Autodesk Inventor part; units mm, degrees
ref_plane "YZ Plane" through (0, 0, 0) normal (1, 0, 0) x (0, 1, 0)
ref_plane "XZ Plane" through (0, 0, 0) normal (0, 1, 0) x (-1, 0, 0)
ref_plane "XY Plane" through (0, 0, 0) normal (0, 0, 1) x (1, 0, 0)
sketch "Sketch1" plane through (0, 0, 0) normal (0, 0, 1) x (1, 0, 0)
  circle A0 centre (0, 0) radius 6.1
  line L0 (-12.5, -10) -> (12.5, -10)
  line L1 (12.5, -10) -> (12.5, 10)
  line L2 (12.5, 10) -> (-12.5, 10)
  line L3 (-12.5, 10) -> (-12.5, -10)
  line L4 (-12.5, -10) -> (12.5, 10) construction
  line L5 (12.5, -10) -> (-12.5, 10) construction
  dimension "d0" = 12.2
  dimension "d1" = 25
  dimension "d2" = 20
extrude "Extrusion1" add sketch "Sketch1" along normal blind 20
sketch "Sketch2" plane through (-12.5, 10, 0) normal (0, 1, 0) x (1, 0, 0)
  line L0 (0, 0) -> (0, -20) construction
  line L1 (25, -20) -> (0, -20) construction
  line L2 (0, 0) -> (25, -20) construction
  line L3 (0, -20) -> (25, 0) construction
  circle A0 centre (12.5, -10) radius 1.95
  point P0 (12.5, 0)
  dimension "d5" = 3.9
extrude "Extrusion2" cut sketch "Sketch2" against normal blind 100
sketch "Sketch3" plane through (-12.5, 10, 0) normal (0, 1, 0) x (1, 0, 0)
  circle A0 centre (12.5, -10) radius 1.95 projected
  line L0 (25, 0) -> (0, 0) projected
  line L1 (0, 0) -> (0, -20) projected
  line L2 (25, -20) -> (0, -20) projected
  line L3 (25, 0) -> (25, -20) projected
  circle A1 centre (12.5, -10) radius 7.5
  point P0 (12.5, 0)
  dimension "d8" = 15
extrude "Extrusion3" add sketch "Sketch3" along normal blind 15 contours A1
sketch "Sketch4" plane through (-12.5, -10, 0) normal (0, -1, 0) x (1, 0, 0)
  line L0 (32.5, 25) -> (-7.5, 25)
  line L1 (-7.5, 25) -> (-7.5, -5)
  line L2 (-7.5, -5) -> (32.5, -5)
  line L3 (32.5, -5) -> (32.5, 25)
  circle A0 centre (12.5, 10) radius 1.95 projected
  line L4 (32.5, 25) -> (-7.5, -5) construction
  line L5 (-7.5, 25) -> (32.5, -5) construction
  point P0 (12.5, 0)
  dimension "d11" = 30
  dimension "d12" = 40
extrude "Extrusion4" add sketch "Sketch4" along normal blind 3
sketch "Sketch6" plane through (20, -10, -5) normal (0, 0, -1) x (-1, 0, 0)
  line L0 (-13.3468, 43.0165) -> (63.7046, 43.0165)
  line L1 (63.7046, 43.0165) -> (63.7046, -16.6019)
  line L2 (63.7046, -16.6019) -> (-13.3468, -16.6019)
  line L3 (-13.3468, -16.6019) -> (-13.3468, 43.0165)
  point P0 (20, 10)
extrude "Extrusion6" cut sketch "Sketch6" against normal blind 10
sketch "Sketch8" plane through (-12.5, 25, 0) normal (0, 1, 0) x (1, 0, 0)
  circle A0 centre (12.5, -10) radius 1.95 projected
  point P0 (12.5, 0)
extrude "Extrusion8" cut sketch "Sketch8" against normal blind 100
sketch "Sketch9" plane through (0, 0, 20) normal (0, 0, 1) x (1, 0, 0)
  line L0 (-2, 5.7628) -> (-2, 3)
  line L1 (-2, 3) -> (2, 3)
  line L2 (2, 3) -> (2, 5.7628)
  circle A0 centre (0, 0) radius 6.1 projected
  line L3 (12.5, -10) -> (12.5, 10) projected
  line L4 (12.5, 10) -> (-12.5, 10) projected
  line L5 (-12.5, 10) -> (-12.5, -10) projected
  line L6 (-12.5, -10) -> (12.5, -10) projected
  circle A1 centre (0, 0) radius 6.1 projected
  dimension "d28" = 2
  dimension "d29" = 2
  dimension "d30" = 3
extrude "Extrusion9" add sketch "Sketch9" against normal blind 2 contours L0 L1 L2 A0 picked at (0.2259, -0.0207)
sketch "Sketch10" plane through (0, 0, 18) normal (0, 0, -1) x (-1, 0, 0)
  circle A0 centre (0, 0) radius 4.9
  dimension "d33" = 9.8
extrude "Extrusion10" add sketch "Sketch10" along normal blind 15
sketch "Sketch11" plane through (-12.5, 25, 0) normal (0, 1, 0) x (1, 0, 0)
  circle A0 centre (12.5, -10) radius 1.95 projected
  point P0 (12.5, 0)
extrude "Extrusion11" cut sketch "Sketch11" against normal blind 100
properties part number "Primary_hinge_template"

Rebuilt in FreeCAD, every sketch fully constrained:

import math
import FreeCAD as App
import Part
import Sketcher

V = App.Vector
Q = App.Units.Quantity

doc = App.newDocument("Part")
params = doc.addObject("Spreadsheet::Sheet", "Params")
for row, (alias, value) in enumerate([
    ("sketch1_diameter", "12.2 mm"),
    ("sketch1_width", "25 mm"),
    ("sketch1_height", "20 mm"),
    ("pad1_length", "20 mm"),
    ("sketch2_diameter", "3.9 mm"),
    ("pocket1_length", "100 mm"),
    ("sketch3_diameter", "15 mm"),
    ("sketch3_diameter2", "3.9 mm"),
    ("pad2_length", "15 mm"),
    ("sketch4_width", "40 mm"),
    ("sketch4_height", "30 mm"),
    ("sketch4_diameter", "3.9 mm"),
    ("pad3_length", "3 mm"),
    ("pocket2_length", "10 mm"),
    ("sketch6_diameter", "3.9 mm"),
    ("pocket3_length", "100 mm"),
    ("sketch7_radius", "6.1 mm"),
    ("pad4_length", "2 mm"),
    ("sketch8_diameter", "9.8 mm"),
    ("pad5_length", "15 mm"),
    ("sketch9_diameter", "3.9 mm"),
    ("pocket4_length", "100 mm"),
], start=1):
    params.set(f"A{row}", alias)
    params.set(f"B{row}", "=" + value)
    params.setAlias(f"B{row}", alias)

body = doc.addObject("PartDesign::Body", "Body")

# Sketch on XY plane
sketch1 = doc.addObject("Sketcher::SketchObject", "Sketch")
body.addObject(sketch1)
sketch1.AttachmentSupport = (doc.XY_Plane, [""])
sketch1.MapMode = "FlatFace"
sketch1.addGeometry([
    Part.LineSegment(V(-12, 10, 0), V(-12, -10, 0)),  # 0
    Part.LineSegment(V(-12, -10, 0), V(12, -10, 0)),  # 1
    Part.LineSegment(V(12, -10, 0), V(12, 10, 0)),  # 2
    Part.LineSegment(V(12, 10, 0), V(-12, 10, 0)),  # 3
    Part.Circle(V(0, 0, 0), V(0, 0, 1), 6),  # 4
], False)
sketch1.addConstraint([
    Sketcher.Constraint("Coincident", 0, 2, 1, 1),
    Sketcher.Constraint("Coincident", 1, 2, 2, 1),
    Sketcher.Constraint("Coincident", 2, 2, 3, 1),
    Sketcher.Constraint("Coincident", 3, 2, 0, 1),
    Sketcher.Constraint("Vertical", 0),
    Sketcher.Constraint("Horizontal", 1),
    Sketcher.Constraint("Vertical", 2),
    Sketcher.Constraint("Horizontal", 3),
    Sketcher.Constraint("Coincident", 4, 3, -1, 1),
    Sketcher.Constraint("Symmetric", 0, 2, 2, 2, -1, 1),
    Sketcher.Constraint("Diameter", 4, Q("12.2 mm")),
    Sketcher.Constraint("DistanceX", 1, 1, 1, 2, Q("25 mm")),
    Sketcher.Constraint("DistanceY", 0, 2, 0, 1, Q("20 mm")),
])
sketch1.setExpression("Constraints[10]", "Params.sketch1_diameter")
sketch1.setExpression("Constraints[11]", "Params.sketch1_width")
sketch1.setExpression("Constraints[12]", "Params.sketch1_height")
pad1 = doc.addObject("PartDesign::Pad", "Pad")
body.addObject(pad1)
pad1.Profile = sketch1
pad1.setExpression("Length", "Params.pad1_length")

# Sketch on XZ plane
sketch2 = doc.addObject("Sketcher::SketchObject", "Sketch001")
body.addObject(sketch2)
sketch2.AttachmentSupport = (doc.XZ_Plane, [""])
sketch2.MapMode = "FlatFace"
sketch2.AttachmentOffset = App.Placement(V(0, 0, -10), App.Rotation())
sketch2.addGeometry(Part.Circle(V(0, 10, 0), V(0, 0, 1), 1.9), False)
sketch2.addConstraint([
    Sketcher.Constraint("PointOnObject", 0, 3, -2),
    Sketcher.Constraint("Diameter", 0, Q("3.9 mm")),
    Sketcher.Constraint("DistanceY", -1, 1, 0, 3, Q("10 mm")),
])
sketch2.setExpression("Constraints[1]", "Params.sketch2_diameter")
pocket1 = doc.addObject("PartDesign::Pocket", "Pocket")
body.addObject(pocket1)
pocket1.Profile = sketch2
pocket1.setExpression("Length", "Params.pocket1_length")
pocket1.Reversed = True

# Sketch on XZ plane
sketch3 = doc.addObject("Sketcher::SketchObject", "Sketch002")
body.addObject(sketch3)
sketch3.AttachmentSupport = (doc.XZ_Plane, [""])
sketch3.MapMode = "FlatFace"
sketch3.AttachmentOffset = App.Placement(V(0, 0, -10), App.Rotation())
sketch3.addGeometry([
    Part.Circle(V(0, 10, 0), V(0, 0, 1), 7.5),
    Part.Circle(V(0, 10, 0), V(0, 0, 1), 1.9),
], False)
sketch3.addConstraint([
    Sketcher.Constraint("Coincident", 1, 3, 0, 3),
    Sketcher.Constraint("PointOnObject", 0, 3, -2),
    Sketcher.Constraint("Diameter", 0, Q("15 mm")),
    Sketcher.Constraint("Diameter", 1, Q("3.9 mm")),
    Sketcher.Constraint("DistanceY", -1, 1, 0, 3, Q("10 mm")),
])
sketch3.setExpression("Constraints[2]", "Params.sketch3_diameter")
sketch3.setExpression("Constraints[3]", "Params.sketch3_diameter2")
pad2 = doc.addObject("PartDesign::Pad", "Pad001")
body.addObject(pad2)
pad2.Profile = sketch3
pad2.setExpression("Length", "Params.pad2_length")
pad2.Reversed = True

# Sketch on XZ plane
sketch4 = doc.addObject("Sketcher::SketchObject", "Sketch003")
body.addObject(sketch4)
sketch4.AttachmentSupport = (doc.XZ_Plane, [""])
sketch4.MapMode = "FlatFace"
sketch4.AttachmentOffset = App.Placement(V(0, 0, 10), App.Rotation())
sketch4.addGeometry([
    Part.LineSegment(V(20, -5, 0), V(20, 25, 0)),  # 0
    Part.LineSegment(V(20, 25, 0), V(-20, 25, 0)),  # 1
    Part.LineSegment(V(-20, 25, 0), V(-20, -5, 0)),  # 2
    Part.LineSegment(V(-20, -5, 0), V(20, -5, 0)),  # 3
    Part.Circle(V(0, 10, 0), V(0, 0, 1), 1.9),  # 4
], False)
sketch4.addConstraint([
    Sketcher.Constraint("Coincident", 0, 2, 1, 1),
    Sketcher.Constraint("Coincident", 1, 2, 2, 1),
    Sketcher.Constraint("Coincident", 2, 2, 3, 1),
    Sketcher.Constraint("Coincident", 3, 2, 0, 1),
    Sketcher.Constraint("Vertical", 0),
    Sketcher.Constraint("Horizontal", 1),
    Sketcher.Constraint("Vertical", 2),
    Sketcher.Constraint("Horizontal", 3),
    Sketcher.Constraint("PointOnObject", 4, 3, -2),
    Sketcher.Constraint("DistanceX", 1, 2, 1, 1, Q("40 mm")),
    Sketcher.Constraint("DistanceY", 0, 1, 0, 2, Q("30 mm")),
    Sketcher.Constraint("Diameter", 4, Q("3.9 mm")),
    Sketcher.Constraint("DistanceY", -1, 1, 4, 3, Q("10 mm")),
    Sketcher.Constraint("DistanceX", -1, 1, 0, 2, Q("20 mm")),
    Sketcher.Constraint("DistanceY", -1, 1, 0, 2, Q("25 mm")),
])
sketch4.setExpression("Constraints[9]", "Params.sketch4_width")
sketch4.setExpression("Constraints[10]", "Params.sketch4_height")
sketch4.setExpression("Constraints[11]", "Params.sketch4_diameter")
pad3 = doc.addObject("PartDesign::Pad", "Pad002")
body.addObject(pad3)
pad3.Profile = sketch4
pad3.setExpression("Length", "Params.pad3_length")

# Sketch on XY plane
sketch5 = doc.addObject("Sketcher::SketchObject", "Sketch004")
body.addObject(sketch5)
sketch5.AttachmentSupport = (doc.XY_Plane, [""])
sketch5.MapMode = "FlatFace"
sketch5.AttachmentOffset = App.Placement(V(0, 0, -5), App.Rotation())
sketch5.addGeometry([
    Part.LineSegment(V(-44, 33, 0), V(33, 33, 0)),
    Part.LineSegment(V(33, 33, 0), V(33, -27, 0)),
    Part.LineSegment(V(33, -27, 0), V(-44, -27, 0)),
    Part.LineSegment(V(-44, -27, 0), V(-44, 33, 0)),
], False)
sketch5.addConstraint([
    Sketcher.Constraint("Coincident", 0, 2, 1, 1),
    Sketcher.Constraint("Coincident", 1, 2, 2, 1),
    Sketcher.Constraint("Coincident", 2, 2, 3, 1),
    Sketcher.Constraint("Coincident", 3, 2, 0, 1),
    Sketcher.Constraint("Horizontal", 0),
    Sketcher.Constraint("Vertical", 1),
    Sketcher.Constraint("Horizontal", 2),
    Sketcher.Constraint("Vertical", 3),
    Sketcher.Constraint("DistanceX", 0, 1, 0, 2, Q("77.0514 mm")),
    Sketcher.Constraint("DistanceY", 1, 2, 1, 1, Q("59.6184 mm")),
    Sketcher.Constraint("DistanceY", 1, 2, -1, 1, Q("26.602 mm")),
    Sketcher.Constraint("DistanceX", -1, 1, 0, 2, Q("33.3468 mm")),
])
pocket2 = doc.addObject("PartDesign::Pocket", "Pocket001")
body.addObject(pocket2)
pocket2.Profile = sketch5
pocket2.setExpression("Length", "Params.pocket2_length")
pocket2.Reversed = True

# Sketch on XZ plane
sketch6 = doc.addObject("Sketcher::SketchObject", "Sketch005")
body.addObject(sketch6)
sketch6.AttachmentSupport = (doc.XZ_Plane, [""])
sketch6.MapMode = "FlatFace"
sketch6.AttachmentOffset = App.Placement(V(0, 0, -25), App.Rotation())
sketch6.addGeometry(Part.Circle(V(0, 10, 0), V(0, 0, 1), 1.9), False)
sketch6.addConstraint([
    Sketcher.Constraint("PointOnObject", 0, 3, -2),
    Sketcher.Constraint("Diameter", 0, Q("3.9 mm")),
    Sketcher.Constraint("DistanceY", -1, 1, 0, 3, Q("10 mm")),
])
sketch6.setExpression("Constraints[1]", "Params.sketch6_diameter")
pocket3 = doc.addObject("PartDesign::Pocket", "Pocket002")
body.addObject(pocket3)
pocket3.Profile = sketch6
pocket3.setExpression("Length", "Params.pocket3_length")
pocket3.Reversed = True

# Sketch on XY plane
sketch7 = doc.addObject("Sketcher::SketchObject", "Sketch006")
body.addObject(sketch7)
sketch7.AttachmentSupport = (doc.XY_Plane, [""])
sketch7.MapMode = "FlatFace"
sketch7.AttachmentOffset = App.Placement(V(0, 0, 20), App.Rotation())
sketch7.addGeometry([
    Part.LineSegment(V(-2, 3, 0), V(-2, 5.8, 0)),
    Part.ArcOfCircle(Part.Circle(V(0, 0, 0), V(0, 0, 1), 6.1), math.radians(109), math.radians(431)),
    Part.LineSegment(V(2, 5.8, 0), V(2, 3, 0)),
    Part.LineSegment(V(2, 3, 0), V(-2, 3, 0)),
], False)
sketch7.addConstraint([
    Sketcher.Constraint("Coincident", 0, 2, 1, 1),
    Sketcher.Constraint("Coincident", 1, 2, 2, 1),
    Sketcher.Constraint("Coincident", 2, 2, 3, 1),
    Sketcher.Constraint("Coincident", 3, 2, 0, 1),
    Sketcher.Constraint("Vertical", 0),
    Sketcher.Constraint("Vertical", 2),
    Sketcher.Constraint("Horizontal", 3),
    Sketcher.Constraint("Coincident", 1, 3, -1, 1),
    Sketcher.Constraint("Horizontal", 0, 2, 1, 2),
    Sketcher.Constraint("DistanceX", 0, 2, -1, 1, Q("2 mm")),
    Sketcher.Constraint("DistanceY", -1, 1, 2, 2, Q("3 mm")),
    Sketcher.Constraint("Radius", 1, Q("6.1 mm")),
])
sketch7.setExpression("Constraints[11]", "Params.sketch7_radius")
pad4 = doc.addObject("PartDesign::Pad", "Pad003")
body.addObject(pad4)
pad4.Profile = sketch7
pad4.setExpression("Length", "Params.pad4_length")
pad4.Reversed = True

# Sketch on XY plane
sketch8 = doc.addObject("Sketcher::SketchObject", "Sketch007")
body.addObject(sketch8)
sketch8.AttachmentSupport = (doc.XY_Plane, [""])
sketch8.MapMode = "FlatFace"
sketch8.AttachmentOffset = App.Placement(V(0, 0, 18), App.Rotation())
sketch8.addGeometry(Part.Circle(V(0, 0, 0), V(0, 0, 1), 4.9), False)
sketch8.addConstraint([
    Sketcher.Constraint("Coincident", 0, 3, -1, 1),
    Sketcher.Constraint("Diameter", 0, Q("9.8 mm")),
])
sketch8.setExpression("Constraints[1]", "Params.sketch8_diameter")
pad5 = doc.addObject("PartDesign::Pad", "Pad004")
body.addObject(pad5)
pad5.Profile = sketch8
pad5.setExpression("Length", "Params.pad5_length")
pad5.Reversed = True

# Sketch on XZ plane
sketch9 = doc.addObject("Sketcher::SketchObject", "Sketch008")
body.addObject(sketch9)
sketch9.AttachmentSupport = (doc.XZ_Plane, [""])
sketch9.MapMode = "FlatFace"
sketch9.AttachmentOffset = App.Placement(V(0, 0, -25), App.Rotation())
sketch9.addGeometry(Part.Circle(V(0, 10, 0), V(0, 0, 1), 1.9), False)
sketch9.addConstraint([
    Sketcher.Constraint("PointOnObject", 0, 3, -2),
    Sketcher.Constraint("Diameter", 0, Q("3.9 mm")),
    Sketcher.Constraint("DistanceY", -1, 1, 0, 3, Q("10 mm")),
])
sketch9.setExpression("Constraints[1]", "Params.sketch9_diameter")
pocket4 = doc.addObject("PartDesign::Pocket", "Pocket003")
body.addObject(pocket4)
pocket4.Profile = sketch9
pocket4.setExpression("Length", "Params.pocket4_length")
pocket4.Reversed = True

doc.recompute()
